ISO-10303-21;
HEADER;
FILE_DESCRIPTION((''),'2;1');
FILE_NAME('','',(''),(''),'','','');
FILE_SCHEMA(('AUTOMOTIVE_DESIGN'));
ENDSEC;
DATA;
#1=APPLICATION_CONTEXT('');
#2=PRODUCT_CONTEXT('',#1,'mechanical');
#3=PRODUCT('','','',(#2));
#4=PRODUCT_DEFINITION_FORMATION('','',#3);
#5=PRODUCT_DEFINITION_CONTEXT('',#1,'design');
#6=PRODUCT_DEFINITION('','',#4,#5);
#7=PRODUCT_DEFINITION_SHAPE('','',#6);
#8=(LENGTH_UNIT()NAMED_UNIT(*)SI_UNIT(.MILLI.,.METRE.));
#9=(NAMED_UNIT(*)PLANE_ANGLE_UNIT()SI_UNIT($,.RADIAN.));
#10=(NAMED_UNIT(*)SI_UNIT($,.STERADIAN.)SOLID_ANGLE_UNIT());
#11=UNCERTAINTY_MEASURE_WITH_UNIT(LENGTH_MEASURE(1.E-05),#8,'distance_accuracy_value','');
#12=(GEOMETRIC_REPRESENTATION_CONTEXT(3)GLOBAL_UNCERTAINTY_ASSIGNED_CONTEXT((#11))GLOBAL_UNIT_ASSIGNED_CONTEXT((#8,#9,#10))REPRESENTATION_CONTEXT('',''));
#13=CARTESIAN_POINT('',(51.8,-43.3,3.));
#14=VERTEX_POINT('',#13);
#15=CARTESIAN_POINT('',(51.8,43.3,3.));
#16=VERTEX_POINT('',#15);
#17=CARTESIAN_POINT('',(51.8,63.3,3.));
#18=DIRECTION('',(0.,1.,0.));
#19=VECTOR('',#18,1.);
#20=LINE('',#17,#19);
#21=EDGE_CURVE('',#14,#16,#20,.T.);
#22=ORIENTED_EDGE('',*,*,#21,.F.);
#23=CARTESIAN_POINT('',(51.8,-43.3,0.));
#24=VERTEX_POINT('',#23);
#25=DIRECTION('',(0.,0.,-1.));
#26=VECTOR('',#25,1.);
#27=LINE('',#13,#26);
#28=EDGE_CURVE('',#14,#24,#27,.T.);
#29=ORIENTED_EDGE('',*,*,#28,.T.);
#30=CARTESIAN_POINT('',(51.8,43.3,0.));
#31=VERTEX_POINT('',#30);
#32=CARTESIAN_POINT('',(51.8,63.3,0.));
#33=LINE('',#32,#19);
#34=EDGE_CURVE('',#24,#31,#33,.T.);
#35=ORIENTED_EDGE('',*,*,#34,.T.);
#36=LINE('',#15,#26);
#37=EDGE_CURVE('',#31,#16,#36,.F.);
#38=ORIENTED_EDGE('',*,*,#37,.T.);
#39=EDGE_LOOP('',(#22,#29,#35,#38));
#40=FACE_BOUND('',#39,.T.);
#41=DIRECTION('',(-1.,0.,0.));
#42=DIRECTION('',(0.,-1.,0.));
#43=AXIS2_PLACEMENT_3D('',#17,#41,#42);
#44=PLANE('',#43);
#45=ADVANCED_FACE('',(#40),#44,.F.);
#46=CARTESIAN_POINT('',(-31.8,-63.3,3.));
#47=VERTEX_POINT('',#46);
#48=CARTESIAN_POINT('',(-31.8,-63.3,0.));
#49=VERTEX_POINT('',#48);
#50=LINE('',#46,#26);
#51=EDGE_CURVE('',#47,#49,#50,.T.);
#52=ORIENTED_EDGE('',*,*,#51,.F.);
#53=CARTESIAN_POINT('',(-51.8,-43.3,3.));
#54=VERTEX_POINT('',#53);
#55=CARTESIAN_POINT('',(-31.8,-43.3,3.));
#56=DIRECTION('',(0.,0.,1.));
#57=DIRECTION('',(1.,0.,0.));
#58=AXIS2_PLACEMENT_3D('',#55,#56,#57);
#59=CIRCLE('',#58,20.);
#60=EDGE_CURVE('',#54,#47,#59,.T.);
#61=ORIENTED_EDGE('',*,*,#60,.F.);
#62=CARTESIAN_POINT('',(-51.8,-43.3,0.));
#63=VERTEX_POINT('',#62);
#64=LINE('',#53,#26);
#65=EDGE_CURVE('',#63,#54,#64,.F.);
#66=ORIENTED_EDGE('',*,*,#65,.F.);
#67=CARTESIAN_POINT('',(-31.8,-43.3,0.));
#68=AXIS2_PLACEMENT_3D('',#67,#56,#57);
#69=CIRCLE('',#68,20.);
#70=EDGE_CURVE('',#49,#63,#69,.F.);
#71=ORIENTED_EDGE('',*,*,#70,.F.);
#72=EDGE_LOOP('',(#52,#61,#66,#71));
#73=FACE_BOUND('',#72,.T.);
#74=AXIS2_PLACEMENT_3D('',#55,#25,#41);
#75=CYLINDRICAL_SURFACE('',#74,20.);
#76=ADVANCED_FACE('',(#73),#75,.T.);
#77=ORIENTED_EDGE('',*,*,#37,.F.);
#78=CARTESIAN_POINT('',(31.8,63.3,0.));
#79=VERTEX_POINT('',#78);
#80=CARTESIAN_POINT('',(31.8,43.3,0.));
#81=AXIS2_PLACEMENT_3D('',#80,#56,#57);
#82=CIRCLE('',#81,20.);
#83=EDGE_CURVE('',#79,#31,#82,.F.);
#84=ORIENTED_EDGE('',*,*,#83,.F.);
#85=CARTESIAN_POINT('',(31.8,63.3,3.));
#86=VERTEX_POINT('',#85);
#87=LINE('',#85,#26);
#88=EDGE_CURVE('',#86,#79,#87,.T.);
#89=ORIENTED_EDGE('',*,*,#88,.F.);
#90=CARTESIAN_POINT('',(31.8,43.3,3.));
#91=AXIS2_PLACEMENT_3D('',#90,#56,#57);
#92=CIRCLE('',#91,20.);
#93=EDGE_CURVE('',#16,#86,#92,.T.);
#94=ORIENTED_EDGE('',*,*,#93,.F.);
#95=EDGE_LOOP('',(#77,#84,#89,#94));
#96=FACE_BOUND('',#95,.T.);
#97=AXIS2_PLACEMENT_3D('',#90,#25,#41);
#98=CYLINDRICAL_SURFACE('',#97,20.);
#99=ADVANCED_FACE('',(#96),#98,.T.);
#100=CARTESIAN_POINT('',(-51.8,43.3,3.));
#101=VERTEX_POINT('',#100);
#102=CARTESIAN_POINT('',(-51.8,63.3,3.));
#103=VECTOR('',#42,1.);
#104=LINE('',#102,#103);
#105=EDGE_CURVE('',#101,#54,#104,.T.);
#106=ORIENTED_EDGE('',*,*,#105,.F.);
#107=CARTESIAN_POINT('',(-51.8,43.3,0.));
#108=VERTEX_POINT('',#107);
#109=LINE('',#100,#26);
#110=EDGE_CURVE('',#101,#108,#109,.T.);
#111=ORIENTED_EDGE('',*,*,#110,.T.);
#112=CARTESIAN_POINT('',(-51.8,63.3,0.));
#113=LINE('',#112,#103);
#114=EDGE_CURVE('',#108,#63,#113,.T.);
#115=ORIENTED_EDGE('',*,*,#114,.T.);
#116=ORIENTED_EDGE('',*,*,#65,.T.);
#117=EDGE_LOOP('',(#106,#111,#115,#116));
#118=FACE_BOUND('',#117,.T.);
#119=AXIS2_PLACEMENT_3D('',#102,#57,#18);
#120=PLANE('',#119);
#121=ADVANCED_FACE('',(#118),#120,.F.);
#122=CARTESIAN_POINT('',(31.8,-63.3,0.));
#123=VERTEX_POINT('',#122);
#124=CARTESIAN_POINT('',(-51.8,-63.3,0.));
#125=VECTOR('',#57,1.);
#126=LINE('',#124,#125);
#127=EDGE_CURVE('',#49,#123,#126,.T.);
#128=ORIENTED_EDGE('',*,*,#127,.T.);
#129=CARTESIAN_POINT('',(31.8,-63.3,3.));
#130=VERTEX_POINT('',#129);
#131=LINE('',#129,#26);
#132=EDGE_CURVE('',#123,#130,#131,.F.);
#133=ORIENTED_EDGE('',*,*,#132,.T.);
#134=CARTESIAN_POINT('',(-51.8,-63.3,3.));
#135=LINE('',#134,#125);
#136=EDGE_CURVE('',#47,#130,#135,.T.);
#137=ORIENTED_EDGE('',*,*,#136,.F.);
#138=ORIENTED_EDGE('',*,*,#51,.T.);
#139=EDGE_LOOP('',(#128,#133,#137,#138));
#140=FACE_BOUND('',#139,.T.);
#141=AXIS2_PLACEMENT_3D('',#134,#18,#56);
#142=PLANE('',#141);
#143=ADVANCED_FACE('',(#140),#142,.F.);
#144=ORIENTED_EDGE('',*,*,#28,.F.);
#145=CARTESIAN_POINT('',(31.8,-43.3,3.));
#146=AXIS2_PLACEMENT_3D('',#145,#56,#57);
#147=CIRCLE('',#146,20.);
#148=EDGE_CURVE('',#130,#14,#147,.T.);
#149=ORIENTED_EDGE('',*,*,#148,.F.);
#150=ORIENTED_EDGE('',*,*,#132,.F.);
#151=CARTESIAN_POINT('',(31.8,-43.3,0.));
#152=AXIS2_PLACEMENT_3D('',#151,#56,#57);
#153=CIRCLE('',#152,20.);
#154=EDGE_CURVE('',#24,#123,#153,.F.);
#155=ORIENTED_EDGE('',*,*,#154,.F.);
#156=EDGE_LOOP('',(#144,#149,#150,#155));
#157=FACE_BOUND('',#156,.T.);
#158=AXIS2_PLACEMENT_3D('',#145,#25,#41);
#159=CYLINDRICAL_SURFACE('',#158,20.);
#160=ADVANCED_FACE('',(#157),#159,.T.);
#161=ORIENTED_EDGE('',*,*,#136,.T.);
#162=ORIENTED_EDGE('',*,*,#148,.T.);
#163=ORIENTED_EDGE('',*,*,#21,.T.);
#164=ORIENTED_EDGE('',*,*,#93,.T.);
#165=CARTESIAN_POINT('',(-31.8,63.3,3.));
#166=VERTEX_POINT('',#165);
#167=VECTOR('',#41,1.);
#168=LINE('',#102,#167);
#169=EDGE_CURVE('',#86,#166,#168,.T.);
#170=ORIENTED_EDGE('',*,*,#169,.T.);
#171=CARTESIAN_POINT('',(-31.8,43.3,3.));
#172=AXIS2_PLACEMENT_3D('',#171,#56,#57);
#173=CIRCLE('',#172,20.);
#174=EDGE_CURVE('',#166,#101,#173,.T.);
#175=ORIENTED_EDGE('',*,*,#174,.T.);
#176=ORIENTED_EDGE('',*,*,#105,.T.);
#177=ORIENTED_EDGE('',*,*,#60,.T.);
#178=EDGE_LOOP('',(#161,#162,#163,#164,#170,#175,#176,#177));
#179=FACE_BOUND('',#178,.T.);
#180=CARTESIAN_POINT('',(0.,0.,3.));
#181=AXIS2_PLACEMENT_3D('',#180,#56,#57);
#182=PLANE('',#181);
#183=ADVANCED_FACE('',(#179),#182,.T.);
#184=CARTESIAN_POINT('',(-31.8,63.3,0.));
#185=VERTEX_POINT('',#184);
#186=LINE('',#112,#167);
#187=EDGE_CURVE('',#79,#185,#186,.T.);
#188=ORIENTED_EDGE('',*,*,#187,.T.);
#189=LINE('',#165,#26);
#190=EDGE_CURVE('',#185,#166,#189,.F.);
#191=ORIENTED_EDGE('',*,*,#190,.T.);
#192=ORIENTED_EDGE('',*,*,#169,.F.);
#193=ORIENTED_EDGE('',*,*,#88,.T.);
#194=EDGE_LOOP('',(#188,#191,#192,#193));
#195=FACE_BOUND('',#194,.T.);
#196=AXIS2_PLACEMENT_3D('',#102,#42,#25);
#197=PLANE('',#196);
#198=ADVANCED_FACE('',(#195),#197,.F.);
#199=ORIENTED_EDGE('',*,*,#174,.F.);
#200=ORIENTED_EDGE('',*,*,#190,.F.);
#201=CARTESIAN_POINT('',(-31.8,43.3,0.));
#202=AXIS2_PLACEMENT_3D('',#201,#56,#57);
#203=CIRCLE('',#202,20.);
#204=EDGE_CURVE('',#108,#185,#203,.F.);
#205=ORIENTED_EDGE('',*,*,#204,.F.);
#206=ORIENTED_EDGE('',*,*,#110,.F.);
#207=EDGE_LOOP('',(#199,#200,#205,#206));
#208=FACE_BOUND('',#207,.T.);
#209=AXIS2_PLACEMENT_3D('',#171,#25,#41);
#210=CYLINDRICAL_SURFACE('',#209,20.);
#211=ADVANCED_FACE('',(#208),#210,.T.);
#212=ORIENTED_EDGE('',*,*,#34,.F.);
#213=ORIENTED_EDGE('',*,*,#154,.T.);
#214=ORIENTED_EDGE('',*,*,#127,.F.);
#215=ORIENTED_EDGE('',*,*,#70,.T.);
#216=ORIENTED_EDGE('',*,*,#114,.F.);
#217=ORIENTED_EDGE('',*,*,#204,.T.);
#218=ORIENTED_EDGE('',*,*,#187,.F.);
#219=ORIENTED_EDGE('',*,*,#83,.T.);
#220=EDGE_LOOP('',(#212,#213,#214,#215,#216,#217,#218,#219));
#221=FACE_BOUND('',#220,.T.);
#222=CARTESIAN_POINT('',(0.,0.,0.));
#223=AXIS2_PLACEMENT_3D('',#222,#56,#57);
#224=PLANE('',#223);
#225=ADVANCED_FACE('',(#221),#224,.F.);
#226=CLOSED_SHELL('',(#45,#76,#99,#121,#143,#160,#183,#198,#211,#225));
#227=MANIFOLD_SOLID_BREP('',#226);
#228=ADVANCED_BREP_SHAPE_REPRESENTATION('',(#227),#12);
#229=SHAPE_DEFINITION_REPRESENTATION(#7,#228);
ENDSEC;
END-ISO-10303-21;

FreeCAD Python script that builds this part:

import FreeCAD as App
import Part
import Sketcher
from FreeCAD import Vector
Q = App.Units.Quantity


def edges_at(feature, points):
    """Names of the edges that pass closest to the given points."""
    edges = feature.Shape.Edges
    near = lambda p: min(range(len(edges)), key=lambda i: edges[i].distToShape(Part.Vertex(*p))[0])
    return sorted({f"Edge{near(p) + 1}" for p in points})


def add_polygon(sketch, points):
    """Adds a closed chain of lines whose ends are joined by coincident constraints."""
    first, n = sketch.GeometryCount, len(points)
    for a, b in zip(points, points[1:] + points[:1]):
        sketch.addGeometry(Part.LineSegment(App.Vector(*a, 0), App.Vector(*b, 0)), False)
    for i in range(n):
        sketch.addConstraint(Sketcher.Constraint("Coincident", first + i, 2, first + (i + 1) % n, 1))

doc = App.newDocument("Part")
body = doc.addObject("PartDesign::Body", "Body")

# Sketch on XY plane
sketch1 = doc.addObject("Sketcher::SketchObject", "Sketch")
body.addObject(sketch1)
sketch1.AttachmentSupport = (doc.XY_Plane, [""])
sketch1.MapMode = "FlatFace"
add_polygon(sketch1, [(-52, 63), (-52, -63), (52, -63), (52, 63)])  # lines 0-3
sketch1.addConstraint([
    Sketcher.Constraint("Vertical", 0),
    Sketcher.Constraint("Horizontal", 1),
    Sketcher.Constraint("Vertical", 2),
    Sketcher.Constraint("Horizontal", 3),
    Sketcher.Constraint("Symmetric", 0, 2, 2, 2, -1, 1),
    Sketcher.Constraint("DistanceX", 1, 1, 1, 2, Q("103.6 mm")),
    Sketcher.Constraint("DistanceY", 0, 2, 0, 1, Q("126.6 mm")),
])
pad1 = doc.addObject("PartDesign::Pad", "Pad")
body.addObject(pad1)
pad1.Profile = sketch1
pad1.Length = 3
doc.recompute()

fillet = doc.addObject("PartDesign::Fillet", "Fillet")
body.addObject(fillet)
fillet.Base = (pad1, edges_at(pad1, [
    (51.8, -63.3, 1.5),
    (-51.8, -63.3, 1.5),
    (-51.8, 63.3, 1.5),
    (51.8, 63.3, 1.5),
]))
fillet.Radius = 20

doc.recompute()
